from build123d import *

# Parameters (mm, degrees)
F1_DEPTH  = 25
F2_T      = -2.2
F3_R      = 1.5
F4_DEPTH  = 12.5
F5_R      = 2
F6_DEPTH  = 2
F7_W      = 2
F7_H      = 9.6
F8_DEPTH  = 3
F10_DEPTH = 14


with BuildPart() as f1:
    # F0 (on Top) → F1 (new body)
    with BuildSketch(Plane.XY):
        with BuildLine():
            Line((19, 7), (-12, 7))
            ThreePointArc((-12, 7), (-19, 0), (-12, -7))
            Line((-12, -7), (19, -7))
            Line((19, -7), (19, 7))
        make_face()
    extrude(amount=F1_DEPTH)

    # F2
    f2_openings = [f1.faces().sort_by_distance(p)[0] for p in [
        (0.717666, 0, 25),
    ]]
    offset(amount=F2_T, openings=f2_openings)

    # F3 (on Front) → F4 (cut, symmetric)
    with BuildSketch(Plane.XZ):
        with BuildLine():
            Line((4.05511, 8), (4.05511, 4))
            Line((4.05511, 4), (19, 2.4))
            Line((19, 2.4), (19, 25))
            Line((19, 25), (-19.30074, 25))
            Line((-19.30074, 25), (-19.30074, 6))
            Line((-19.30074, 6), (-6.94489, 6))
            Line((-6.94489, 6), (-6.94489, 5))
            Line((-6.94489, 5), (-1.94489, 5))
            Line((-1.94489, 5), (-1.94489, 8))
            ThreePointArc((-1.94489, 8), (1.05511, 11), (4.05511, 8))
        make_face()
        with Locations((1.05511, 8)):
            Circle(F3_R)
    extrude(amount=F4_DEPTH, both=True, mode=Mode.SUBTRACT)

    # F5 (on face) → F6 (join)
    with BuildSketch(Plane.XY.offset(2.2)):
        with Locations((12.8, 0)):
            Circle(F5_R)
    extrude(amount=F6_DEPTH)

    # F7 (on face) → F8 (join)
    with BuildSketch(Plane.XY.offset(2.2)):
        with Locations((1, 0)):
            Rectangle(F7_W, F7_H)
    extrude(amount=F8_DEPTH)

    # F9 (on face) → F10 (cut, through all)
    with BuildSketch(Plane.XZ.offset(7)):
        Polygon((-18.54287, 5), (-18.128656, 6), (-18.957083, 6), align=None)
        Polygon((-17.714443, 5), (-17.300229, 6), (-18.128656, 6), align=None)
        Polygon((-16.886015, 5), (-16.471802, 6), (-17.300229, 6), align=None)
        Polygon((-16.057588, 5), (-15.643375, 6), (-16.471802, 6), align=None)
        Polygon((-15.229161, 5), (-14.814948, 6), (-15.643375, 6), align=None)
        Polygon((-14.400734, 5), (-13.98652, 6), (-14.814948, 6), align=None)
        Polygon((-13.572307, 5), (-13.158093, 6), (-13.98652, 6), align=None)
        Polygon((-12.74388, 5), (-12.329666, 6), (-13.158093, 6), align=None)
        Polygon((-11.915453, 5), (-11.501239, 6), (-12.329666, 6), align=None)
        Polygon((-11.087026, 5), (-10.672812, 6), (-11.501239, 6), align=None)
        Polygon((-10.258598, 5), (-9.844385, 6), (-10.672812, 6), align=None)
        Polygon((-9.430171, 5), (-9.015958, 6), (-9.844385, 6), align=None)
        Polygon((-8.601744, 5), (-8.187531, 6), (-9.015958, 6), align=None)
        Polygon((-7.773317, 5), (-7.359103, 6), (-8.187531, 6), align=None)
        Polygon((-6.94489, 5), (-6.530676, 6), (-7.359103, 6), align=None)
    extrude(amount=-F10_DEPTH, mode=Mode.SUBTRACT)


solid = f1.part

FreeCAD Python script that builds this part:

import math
import FreeCAD as App
import Part
import Sketcher
from FreeCAD import Vector


def faces_at(feature, points):
    """Names of the faces that lie closest to the given points."""
    faces = feature.Shape.Faces
    near = lambda p: min(range(len(faces)), key=lambda i: faces[i].distToShape(Part.Vertex(*p))[0])
    return sorted({f"Face{near(p) + 1}" for p in points})


def add_polygon(sketch, points):
    """Adds a closed chain of lines whose ends are joined by coincident constraints."""
    first, n = sketch.GeometryCount, len(points)
    for a, b in zip(points, points[1:] + points[:1]):
        sketch.addGeometry(Part.LineSegment(App.Vector(*a, 0), App.Vector(*b, 0)), False)
    for i in range(n):
        sketch.addConstraint(Sketcher.Constraint("Coincident", first + i, 2, first + (i + 1) % n, 1))

doc = App.newDocument("Part")
body = doc.addObject("PartDesign::Body", "Body")

sketch1 = body.newObject("Sketcher::SketchObject", "Sketch")
sketch1.AttachmentSupport = (doc.getObject("XY_Plane"), [""])
sketch1.MapMode = "FlatFace"
sketch1.addGeometry([
    Part.LineSegment(Vector(19, 7, 0), Vector(-12, 7, 0)),
    Part.ArcOfCircle(Part.Circle(Vector(-12, 0, 0), Vector(0, 0, 1), 7), math.radians(90), math.radians(270)),
    Part.LineSegment(Vector(-12, -7, 0), Vector(19, -7, 0)),
    Part.LineSegment(Vector(19, -7, 0), Vector(19, 7, 0)),
], False)
sketch1.addConstraint([
    Sketcher.Constraint("Tangent", 0, 2, 1, 1),
    Sketcher.Constraint("Tangent", 1, 2, 2, 1),
    Sketcher.Constraint("Coincident", 2, 2, 3, 1),
    Sketcher.Constraint("Coincident", 3, 2, 0, 1),
    Sketcher.Constraint("Horizontal", 0),
    Sketcher.Constraint("Horizontal", 2),
    Sketcher.Constraint("Vertical", 3),
    Sketcher.Constraint("PointOnObject", 1, 3, -1),
    Sketcher.Constraint("Radius", 1, 7.0),
    Sketcher.Constraint("DistanceX", 0, 2, 0, 1, 31.0),
    Sketcher.Constraint("DistanceX", 1, 3, -1, 1, 12.0),
])
pad1 = body.newObject("PartDesign::Pad", "Pad")
pad1.Profile = sketch1
pad1.Length = 25
doc.recompute()

thickness = body.newObject("PartDesign::Thickness", "Thickness")
thickness.Base = (pad1, faces_at(pad1, [(0, 0, 25)]))
thickness.Value = 2.2
thickness.Reversed = True
thickness.Join = "Arc"

sketch2 = body.newObject("Sketcher::SketchObject", "Sketch001")
sketch2.AttachmentSupport = (doc.getObject("XZ_Plane"), [""])
sketch2.MapMode = "FlatFace"
sketch2.addGeometry([
    Part.LineSegment(Vector(4.1, 8, 0), Vector(4.1, 4, 0)),
    Part.LineSegment(Vector(4.1, 4, 0), Vector(19, 2.4, 0)),
    Part.LineSegment(Vector(19, 2.4, 0), Vector(19, 25, 0)),
    Part.LineSegment(Vector(19, 25, 0), Vector(-19.3, 25, 0)),
    Part.LineSegment(Vector(-19.3, 25, 0), Vector(-19.3, 6, 0)),
    Part.LineSegment(Vector(-19.3, 6, 0), Vector(-6.9, 6, 0)),
    Part.LineSegment(Vector(-6.9, 6, 0), Vector(-6.9, 5, 0)),
    Part.LineSegment(Vector(-6.9, 5, 0), Vector(-1.9, 5, 0)),
    Part.LineSegment(Vector(-1.9, 5, 0), Vector(-1.9, 8, 0)),
    Part.ArcOfCircle(Part.Circle(Vector(1.1, 8, 0), Vector(0, 0, 1), 3), math.radians(0), math.radians(180)),
    Part.Circle(Vector(1.1, 8, 0), Vector(0, 0, 1), 1.5),
], False)
sketch2.addConstraint([
    Sketcher.Constraint("Coincident", 0, 2, 1, 1),
    Sketcher.Constraint("Coincident", 1, 2, 2, 1),
    Sketcher.Constraint("Coincident", 2, 2, 3, 1),
    Sketcher.Constraint("Coincident", 3, 2, 4, 1),
    Sketcher.Constraint("Coincident", 4, 2, 5, 1),
    Sketcher.Constraint("Coincident", 5, 2, 6, 1),
    Sketcher.Constraint("Coincident", 6, 2, 7, 1),
    Sketcher.Constraint("Coincident", 7, 2, 8, 1),
    Sketcher.Constraint("Tangent", 8, 2, 9, 2),
    Sketcher.Constraint("Tangent", 9, 1, 0, 1),
    Sketcher.Constraint("Vertical", 0),
    Sketcher.Constraint("Vertical", 2),
    Sketcher.Constraint("Horizontal", 3),
    Sketcher.Constraint("Vertical", 4),
    Sketcher.Constraint("Horizontal", 5),
    Sketcher.Constraint("Vertical", 6),
    Sketcher.Constraint("Horizontal", 7),
    Sketcher.Constraint("Vertical", 8),
    Sketcher.Constraint("Coincident", 10, 3, 9, 3),
    Sketcher.Constraint("Diameter", 10, 3.0),
    Sketcher.Constraint("Radius", 9, 3.0),
    Sketcher.Constraint("DistanceX", 7, 1, 7, 2, 5.0),
    Sketcher.Constraint("DistanceY", 0, 2, 0, 1, 4.0),
    Sketcher.Constraint("DistanceY", 4, 2, 4, 1, 19.0),
    Sketcher.Constraint("DistanceY", 6, 2, 6, 1, 1.0),
    Sketcher.Constraint("DistanceY", 8, 1, 8, 2, 3.0),
    Sketcher.Constraint("DistanceY", 2, 1, 2, 2, 22.6),
    Sketcher.Constraint("DistanceY", -1, 1, 9, 3, 8.0),
    Sketcher.Constraint("DistanceX", -1, 1, 1, 2, 19.0),
    Sketcher.Constraint("DistanceX", 3, 2, 3, 1, 38.30074),
    Sketcher.Constraint("DistanceX", 5, 1, 5, 2, 12.35585),
])
pocket1 = body.newObject("PartDesign::Pocket", "Pocket")
pocket1.Profile = sketch2
pocket1.Length = 25
pocket1.Midplane = True

sketch3 = body.newObject("Sketcher::SketchObject", "Sketch002")
sketch3.AttachmentSupport = (doc.getObject("XY_Plane"), [""])
sketch3.MapMode = "FlatFace"
sketch3.AttachmentOffset = App.Placement(Vector(0, 0, 2.2), App.Rotation())
sketch3.addGeometry(Part.Circle(Vector(12.8, 0, 0), Vector(0, 0, 1), 2), False)
sketch3.addConstraint([
    Sketcher.Constraint("PointOnObject", 0, 3, -1),
    Sketcher.Constraint("Diameter", 0, 4.0),
    Sketcher.Constraint("DistanceX", -1, 1, 0, 3, 12.8),
])
pad2 = body.newObject("PartDesign::Pad", "Pad001")
pad2.Profile = sketch3
pad2.Length = 2

sketch4 = body.newObject("Sketcher::SketchObject", "Sketch003")
sketch4.AttachmentSupport = (doc.getObject("XY_Plane"), [""])
sketch4.MapMode = "FlatFace"
sketch4.AttachmentOffset = App.Placement(Vector(0, 0, 2.2), App.Rotation())
add_polygon(sketch4, [(0, 4.8), (0, -4.8), (2, -4.8), (2, 4.8)])
sketch4.addConstraint([
    Sketcher.Constraint("Vertical", 0),
    Sketcher.Constraint("Horizontal", 1),
    Sketcher.Constraint("Vertical", 2),
    Sketcher.Constraint("Horizontal", 3),
    Sketcher.Constraint("Symmetric", 0, 2, 3, 2, -1, 1),
    Sketcher.Constraint("DistanceX", 1, 1, 1, 2, 2.0),
    Sketcher.Constraint("DistanceY", 0, 2, 0, 1, 9.6),
])
pad3 = body.newObject("PartDesign::Pad", "Pad002")
pad3.Profile = sketch4
pad3.Length = 3

sketch5 = body.newObject("Sketcher::SketchObject", "Sketch004")
sketch5.AttachmentSupport = (doc.getObject("XZ_Plane"), [""])
sketch5.MapMode = "FlatFace"
sketch5.AttachmentOffset = App.Placement(Vector(0, 0, 7), App.Rotation())
add_polygon(sketch5, [(-18.5, 5), (-18.1, 6), (-19, 6)])
add_polygon(sketch5, [(-17.7, 5), (-17.3, 6), (-18.1, 6)])
add_polygon(sketch5, [(-16.9, 5), (-16.5, 6), (-17.3, 6)])
add_polygon(sketch5, [(-16.1, 5), (-15.6, 6), (-16.5, 6)])
add_polygon(sketch5, [(-15.2, 5), (-14.8, 6), (-15.6, 6)])
add_polygon(sketch5, [(-14.4, 5), (-14, 6), (-14.8, 6)])
add_polygon(sketch5, [(-13.6, 5), (-13.2, 6), (-14, 6)])
add_polygon(sketch5, [(-12.7, 5), (-12.3, 6), (-13.2, 6)])
add_polygon(sketch5, [(-11.9, 5), (-11.5, 6), (-12.3, 6)])
add_polygon(sketch5, [(-11.1, 5), (-10.7, 6), (-11.5, 6)])
add_polygon(sketch5, [(-10.3, 5), (-9.8, 6), (-10.7, 6)])
add_polygon(sketch5, [(-9.4, 5), (-9, 6), (-9.8, 6)])
add_polygon(sketch5, [(-8.6, 5), (-8.2, 6), (-9, 6)])
add_polygon(sketch5, [(-7.8, 5), (-7.4, 6), (-8.2, 6)])
add_polygon(sketch5, [(-6.9, 5), (-6.5, 6), (-7.4, 6)])
sketch5.addConstraint([
    Sketcher.Constraint("Horizontal", 1),
    Sketcher.Constraint("Horizontal", 4),
    Sketcher.Constraint("Horizontal", 7),
    Sketcher.Constraint("Horizontal", 10),
    Sketcher.Constraint("Horizontal", 13),
    Sketcher.Constraint("Horizontal", 16),
    Sketcher.Constraint("Horizontal", 19),
    Sketcher.Constraint("Horizontal", 22),
    Sketcher.Constraint("Horizontal", 25),
    Sketcher.Constraint("Horizontal", 28),
    Sketcher.Constraint("Horizontal", 31),
    Sketcher.Constraint("Horizontal", 34),
    Sketcher.Constraint("Horizontal", 37),
    Sketcher.Constraint("Horizontal", 40),
    Sketcher.Constraint("Horizontal", 43),
    Sketcher.Constraint("Coincident", 4, 2, 0, 2),
    Sketcher.Constraint("Coincident", 7, 2, 3, 2),
    Sketcher.Constraint("Coincident", 10, 2, 6, 2),
    Sketcher.Constraint("Coincident", 13, 2, 9, 2),
    Sketcher.Constraint("Coincident", 16, 2, 12, 2),
    Sketcher.Constraint("Coincident", 19, 2, 15, 2),
    Sketcher.Constraint("Coincident", 22, 2, 18, 2),
    Sketcher.Constraint("Coincident", 25, 2, 21, 2),
    Sketcher.Constraint("Coincident", 28, 2, 24, 2),
    Sketcher.Constraint("Coincident", 31, 2, 27, 2),
    Sketcher.Constraint("Coincident", 34, 2, 30, 2),
    Sketcher.Constraint("Coincident", 37, 2, 33, 2),
    Sketcher.Constraint("Coincident", 40, 2, 36, 2),
    Sketcher.Constraint("Coincident", 43, 2, 39, 2),
    Sketcher.Constraint("Parallel", 0, 3),
    Sketcher.Constraint("Parallel", 2, 5),
    Sketcher.Constraint("Parallel", 3, 6),
    Sketcher.Constraint("Parallel", 5, 8),
    Sketcher.Constraint("Parallel", 6, 9),
    Sketcher.Constraint("Parallel", 8, 11),
    Sketcher.Constraint("Parallel", 9, 12),
    Sketcher.Constraint("Parallel", 11, 14),
    Sketcher.Constraint("Parallel", 12, 15),
    Sketcher.Constraint("Parallel", 14, 17),
    Sketcher.Constraint("Parallel", 15, 18),
    Sketcher.Constraint("Parallel", 17, 20),
    Sketcher.Constraint("Parallel", 18, 21),
    Sketcher.Constraint("Parallel", 20, 23),
    Sketcher.Constraint("Parallel", 21, 24),
    Sketcher.Constraint("Parallel", 23, 26),
    Sketcher.Constraint("Parallel", 24, 27),
    Sketcher.Constraint("Parallel", 26, 29),
    Sketcher.Constraint("Parallel", 27, 30),
    Sketcher.Constraint("Parallel", 29, 32),
    Sketcher.Constraint("Parallel", 30, 33),
    Sketcher.Constraint("Parallel", 32, 35),
    Sketcher.Constraint("Parallel", 33, 36),
    Sketcher.Constraint("Parallel", 35, 38),
    Sketcher.Constraint("Parallel", 36, 39),
    Sketcher.Constraint("Parallel", 38, 41),
    Sketcher.Constraint("Parallel", 39, 42),
    Sketcher.Constraint("Parallel", 41, 44),
    Sketcher.Constraint("Horizontal", 2, 2, 5, 2),
    Sketcher.Constraint("Horizontal", 5, 2, 8, 2),
    Sketcher.Constraint("Horizontal", 8, 2, 11, 2),
    Sketcher.Constraint("Horizontal", 11, 2, 14, 2),
    Sketcher.Constraint("Horizontal", 14, 2, 17, 2),
    Sketcher.Constraint("Horizontal", 17, 2, 20, 2),
    Sketcher.Constraint("Horizontal", 20, 2, 23, 2),
    Sketcher.Constraint("Horizontal", 23, 2, 26, 2),
    Sketcher.Constraint("Horizontal", 26, 2, 29, 2),
    Sketcher.Constraint("Horizontal", 29, 2, 32, 2),
    Sketcher.Constraint("Horizontal", 32, 2, 35, 2),
    Sketcher.Constraint("Horizontal", 35, 2, 38, 2),
    Sketcher.Constraint("Horizontal", 38, 2, 41, 2),
    Sketcher.Constraint("Horizontal", 41, 2, 44, 2),
    Sketcher.Constraint("Equal", 0, 2),
    Sketcher.Constraint("DistanceY", -1, 1, 0, 2, 6.0),
    Sketcher.Constraint("DistanceY", -1, 1, 2, 2, 5.0),
    Sketcher.Constraint("DistanceX", 6, 2, -1, 1, 16.471802),
    Sketcher.Constraint("Distance", 2, 1.082392),
])
pocket2 = body.newObject("PartDesign::Pocket", "Pocket001")
pocket2.Profile = sketch5
pocket2.Type = "ThroughAll"

doc.recompute()
